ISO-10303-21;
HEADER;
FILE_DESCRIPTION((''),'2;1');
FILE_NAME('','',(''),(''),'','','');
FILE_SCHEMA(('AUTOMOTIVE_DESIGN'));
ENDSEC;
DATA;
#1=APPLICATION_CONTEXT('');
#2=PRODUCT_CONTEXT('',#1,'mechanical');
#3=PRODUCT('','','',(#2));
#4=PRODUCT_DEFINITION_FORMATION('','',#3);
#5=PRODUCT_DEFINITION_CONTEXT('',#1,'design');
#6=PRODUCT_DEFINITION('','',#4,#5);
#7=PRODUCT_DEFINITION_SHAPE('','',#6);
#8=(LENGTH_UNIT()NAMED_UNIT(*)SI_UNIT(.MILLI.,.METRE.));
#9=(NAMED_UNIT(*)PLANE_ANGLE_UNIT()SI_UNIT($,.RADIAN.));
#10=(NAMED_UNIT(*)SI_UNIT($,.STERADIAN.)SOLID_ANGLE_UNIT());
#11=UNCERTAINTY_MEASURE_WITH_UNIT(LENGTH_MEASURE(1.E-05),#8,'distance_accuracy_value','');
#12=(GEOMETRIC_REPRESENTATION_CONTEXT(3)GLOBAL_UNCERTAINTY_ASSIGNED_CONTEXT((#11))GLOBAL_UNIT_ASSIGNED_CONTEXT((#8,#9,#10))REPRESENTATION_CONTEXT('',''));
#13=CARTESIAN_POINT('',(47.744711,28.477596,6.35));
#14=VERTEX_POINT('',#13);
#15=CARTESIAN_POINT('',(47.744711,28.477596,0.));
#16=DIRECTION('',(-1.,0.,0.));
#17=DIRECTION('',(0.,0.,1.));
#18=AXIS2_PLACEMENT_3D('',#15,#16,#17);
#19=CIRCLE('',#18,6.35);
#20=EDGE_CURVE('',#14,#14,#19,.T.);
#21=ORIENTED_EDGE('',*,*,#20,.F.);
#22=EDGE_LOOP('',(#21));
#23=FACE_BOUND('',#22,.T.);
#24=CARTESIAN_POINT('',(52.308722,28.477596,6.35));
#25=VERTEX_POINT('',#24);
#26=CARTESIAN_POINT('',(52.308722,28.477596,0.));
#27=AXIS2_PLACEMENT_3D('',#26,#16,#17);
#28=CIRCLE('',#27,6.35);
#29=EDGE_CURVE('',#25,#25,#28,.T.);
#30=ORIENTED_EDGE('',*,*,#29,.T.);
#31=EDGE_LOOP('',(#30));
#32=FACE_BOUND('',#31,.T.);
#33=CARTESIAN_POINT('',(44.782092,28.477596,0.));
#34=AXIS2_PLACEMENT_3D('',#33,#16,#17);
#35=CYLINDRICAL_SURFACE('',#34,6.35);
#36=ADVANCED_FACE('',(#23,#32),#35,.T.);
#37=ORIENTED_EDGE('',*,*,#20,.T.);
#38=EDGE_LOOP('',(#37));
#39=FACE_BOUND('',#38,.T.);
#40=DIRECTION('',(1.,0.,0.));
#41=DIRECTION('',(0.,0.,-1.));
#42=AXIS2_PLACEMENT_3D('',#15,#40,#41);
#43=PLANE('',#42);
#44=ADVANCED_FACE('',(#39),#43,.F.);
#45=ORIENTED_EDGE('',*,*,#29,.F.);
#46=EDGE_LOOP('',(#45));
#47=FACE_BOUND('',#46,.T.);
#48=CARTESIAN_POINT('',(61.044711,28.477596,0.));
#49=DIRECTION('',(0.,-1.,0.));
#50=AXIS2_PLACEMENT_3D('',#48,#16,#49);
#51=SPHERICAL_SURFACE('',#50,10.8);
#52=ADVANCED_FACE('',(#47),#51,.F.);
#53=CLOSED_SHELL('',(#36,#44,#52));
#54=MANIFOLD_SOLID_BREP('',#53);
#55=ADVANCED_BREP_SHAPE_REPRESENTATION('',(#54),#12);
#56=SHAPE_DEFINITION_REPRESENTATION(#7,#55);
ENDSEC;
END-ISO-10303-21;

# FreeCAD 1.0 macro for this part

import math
import FreeCAD as App
import Part
import Sketcher
from FreeCAD import Vector
Q = App.Units.Quantity

doc = App.newDocument("Part")
params = doc.addObject("Spreadsheet::Sheet", "Params")
for row, (alias, value) in enumerate([
    ("sketch1_radius", "10.8 mm"),
    ("sketch1_width", "2.5 mm"),
    ("sketch1_height", "6.35 mm"),
    ("revolution_angle", "360 deg"),
], start=1):
    params.set(f"A{row}", alias)
    params.set(f"B{row}", "=" + value)
    params.setAlias(f"B{row}", alias)

body = doc.addObject("PartDesign::Body", "Body")

# Sketch on XY plane
sketch1 = body.newObject("Sketcher::SketchObject", "Sketch")
sketch1.AttachmentSupport = (doc.getObject("XY_Plane"), [""])
sketch1.MapMode = "FlatFace"
sketch1.addGeometry([
    Part.LineSegment(Vector(47.7, 34.8, 0), Vector(47.7, 28.5, 0)),
    Part.LineSegment(Vector(47.7, 28.5, 0), Vector(50.2, 28.5, 0)),
    Part.ArcOfCircle(Part.Circle(Vector(61, 28.5, 0), Vector(0, 0, 1), 10.8), math.radians(144), math.radians(180)),
    Part.LineSegment(Vector(52.3, 34.8, 0), Vector(47.7, 34.8, 0)),
], False)
sketch1.addGeometry(Part.LineSegment(Vector(47.7, 28.5, 0), Vector(61, 28.5, 0)), True)  # axis
sketch1.addConstraint([
    Sketcher.Constraint("Coincident", 0, 2, 1, 1),
    Sketcher.Constraint("Coincident", 1, 2, 2, 2),
    Sketcher.Constraint("Coincident", 2, 1, 3, 1),
    Sketcher.Constraint("Coincident", 3, 2, 0, 1),
    Sketcher.Constraint("Vertical", 0),
    Sketcher.Constraint("Horizontal", 1),
    Sketcher.Constraint("Horizontal", 3),
    Sketcher.Constraint("Horizontal", 4),
    Sketcher.Constraint("Coincident", 4, 1, 0, 2),
    Sketcher.Constraint("Coincident", 4, 2, 2, 3),
    Sketcher.Constraint("Radius", 2, Q("10.8 mm")),
    Sketcher.Constraint("DistanceX", 1, 1, 1, 2, Q("2.5 mm")),
    Sketcher.Constraint("DistanceY", 0, 2, 0, 1, Q("6.35 mm")),
    Sketcher.Constraint("DistanceX", -1, 1, 2, 3, Q("61.044711 mm")),
    Sketcher.Constraint("DistanceY", -1, 1, 2, 3, Q("28.477596 mm")),
])
sketch1.setExpression("Constraints[10]", "Params.sketch1_radius")
sketch1.setExpression("Constraints[11]", "Params.sketch1_width")
sketch1.setExpression("Constraints[12]", "Params.sketch1_height")
revolution = body.newObject("PartDesign::Revolution", "Revolution")
revolution.Profile = sketch1
revolution.ReferenceAxis = (sketch1, ["Axis0"])
revolution.setExpression("Angle", "Params.revolution_angle")

doc.recompute()
